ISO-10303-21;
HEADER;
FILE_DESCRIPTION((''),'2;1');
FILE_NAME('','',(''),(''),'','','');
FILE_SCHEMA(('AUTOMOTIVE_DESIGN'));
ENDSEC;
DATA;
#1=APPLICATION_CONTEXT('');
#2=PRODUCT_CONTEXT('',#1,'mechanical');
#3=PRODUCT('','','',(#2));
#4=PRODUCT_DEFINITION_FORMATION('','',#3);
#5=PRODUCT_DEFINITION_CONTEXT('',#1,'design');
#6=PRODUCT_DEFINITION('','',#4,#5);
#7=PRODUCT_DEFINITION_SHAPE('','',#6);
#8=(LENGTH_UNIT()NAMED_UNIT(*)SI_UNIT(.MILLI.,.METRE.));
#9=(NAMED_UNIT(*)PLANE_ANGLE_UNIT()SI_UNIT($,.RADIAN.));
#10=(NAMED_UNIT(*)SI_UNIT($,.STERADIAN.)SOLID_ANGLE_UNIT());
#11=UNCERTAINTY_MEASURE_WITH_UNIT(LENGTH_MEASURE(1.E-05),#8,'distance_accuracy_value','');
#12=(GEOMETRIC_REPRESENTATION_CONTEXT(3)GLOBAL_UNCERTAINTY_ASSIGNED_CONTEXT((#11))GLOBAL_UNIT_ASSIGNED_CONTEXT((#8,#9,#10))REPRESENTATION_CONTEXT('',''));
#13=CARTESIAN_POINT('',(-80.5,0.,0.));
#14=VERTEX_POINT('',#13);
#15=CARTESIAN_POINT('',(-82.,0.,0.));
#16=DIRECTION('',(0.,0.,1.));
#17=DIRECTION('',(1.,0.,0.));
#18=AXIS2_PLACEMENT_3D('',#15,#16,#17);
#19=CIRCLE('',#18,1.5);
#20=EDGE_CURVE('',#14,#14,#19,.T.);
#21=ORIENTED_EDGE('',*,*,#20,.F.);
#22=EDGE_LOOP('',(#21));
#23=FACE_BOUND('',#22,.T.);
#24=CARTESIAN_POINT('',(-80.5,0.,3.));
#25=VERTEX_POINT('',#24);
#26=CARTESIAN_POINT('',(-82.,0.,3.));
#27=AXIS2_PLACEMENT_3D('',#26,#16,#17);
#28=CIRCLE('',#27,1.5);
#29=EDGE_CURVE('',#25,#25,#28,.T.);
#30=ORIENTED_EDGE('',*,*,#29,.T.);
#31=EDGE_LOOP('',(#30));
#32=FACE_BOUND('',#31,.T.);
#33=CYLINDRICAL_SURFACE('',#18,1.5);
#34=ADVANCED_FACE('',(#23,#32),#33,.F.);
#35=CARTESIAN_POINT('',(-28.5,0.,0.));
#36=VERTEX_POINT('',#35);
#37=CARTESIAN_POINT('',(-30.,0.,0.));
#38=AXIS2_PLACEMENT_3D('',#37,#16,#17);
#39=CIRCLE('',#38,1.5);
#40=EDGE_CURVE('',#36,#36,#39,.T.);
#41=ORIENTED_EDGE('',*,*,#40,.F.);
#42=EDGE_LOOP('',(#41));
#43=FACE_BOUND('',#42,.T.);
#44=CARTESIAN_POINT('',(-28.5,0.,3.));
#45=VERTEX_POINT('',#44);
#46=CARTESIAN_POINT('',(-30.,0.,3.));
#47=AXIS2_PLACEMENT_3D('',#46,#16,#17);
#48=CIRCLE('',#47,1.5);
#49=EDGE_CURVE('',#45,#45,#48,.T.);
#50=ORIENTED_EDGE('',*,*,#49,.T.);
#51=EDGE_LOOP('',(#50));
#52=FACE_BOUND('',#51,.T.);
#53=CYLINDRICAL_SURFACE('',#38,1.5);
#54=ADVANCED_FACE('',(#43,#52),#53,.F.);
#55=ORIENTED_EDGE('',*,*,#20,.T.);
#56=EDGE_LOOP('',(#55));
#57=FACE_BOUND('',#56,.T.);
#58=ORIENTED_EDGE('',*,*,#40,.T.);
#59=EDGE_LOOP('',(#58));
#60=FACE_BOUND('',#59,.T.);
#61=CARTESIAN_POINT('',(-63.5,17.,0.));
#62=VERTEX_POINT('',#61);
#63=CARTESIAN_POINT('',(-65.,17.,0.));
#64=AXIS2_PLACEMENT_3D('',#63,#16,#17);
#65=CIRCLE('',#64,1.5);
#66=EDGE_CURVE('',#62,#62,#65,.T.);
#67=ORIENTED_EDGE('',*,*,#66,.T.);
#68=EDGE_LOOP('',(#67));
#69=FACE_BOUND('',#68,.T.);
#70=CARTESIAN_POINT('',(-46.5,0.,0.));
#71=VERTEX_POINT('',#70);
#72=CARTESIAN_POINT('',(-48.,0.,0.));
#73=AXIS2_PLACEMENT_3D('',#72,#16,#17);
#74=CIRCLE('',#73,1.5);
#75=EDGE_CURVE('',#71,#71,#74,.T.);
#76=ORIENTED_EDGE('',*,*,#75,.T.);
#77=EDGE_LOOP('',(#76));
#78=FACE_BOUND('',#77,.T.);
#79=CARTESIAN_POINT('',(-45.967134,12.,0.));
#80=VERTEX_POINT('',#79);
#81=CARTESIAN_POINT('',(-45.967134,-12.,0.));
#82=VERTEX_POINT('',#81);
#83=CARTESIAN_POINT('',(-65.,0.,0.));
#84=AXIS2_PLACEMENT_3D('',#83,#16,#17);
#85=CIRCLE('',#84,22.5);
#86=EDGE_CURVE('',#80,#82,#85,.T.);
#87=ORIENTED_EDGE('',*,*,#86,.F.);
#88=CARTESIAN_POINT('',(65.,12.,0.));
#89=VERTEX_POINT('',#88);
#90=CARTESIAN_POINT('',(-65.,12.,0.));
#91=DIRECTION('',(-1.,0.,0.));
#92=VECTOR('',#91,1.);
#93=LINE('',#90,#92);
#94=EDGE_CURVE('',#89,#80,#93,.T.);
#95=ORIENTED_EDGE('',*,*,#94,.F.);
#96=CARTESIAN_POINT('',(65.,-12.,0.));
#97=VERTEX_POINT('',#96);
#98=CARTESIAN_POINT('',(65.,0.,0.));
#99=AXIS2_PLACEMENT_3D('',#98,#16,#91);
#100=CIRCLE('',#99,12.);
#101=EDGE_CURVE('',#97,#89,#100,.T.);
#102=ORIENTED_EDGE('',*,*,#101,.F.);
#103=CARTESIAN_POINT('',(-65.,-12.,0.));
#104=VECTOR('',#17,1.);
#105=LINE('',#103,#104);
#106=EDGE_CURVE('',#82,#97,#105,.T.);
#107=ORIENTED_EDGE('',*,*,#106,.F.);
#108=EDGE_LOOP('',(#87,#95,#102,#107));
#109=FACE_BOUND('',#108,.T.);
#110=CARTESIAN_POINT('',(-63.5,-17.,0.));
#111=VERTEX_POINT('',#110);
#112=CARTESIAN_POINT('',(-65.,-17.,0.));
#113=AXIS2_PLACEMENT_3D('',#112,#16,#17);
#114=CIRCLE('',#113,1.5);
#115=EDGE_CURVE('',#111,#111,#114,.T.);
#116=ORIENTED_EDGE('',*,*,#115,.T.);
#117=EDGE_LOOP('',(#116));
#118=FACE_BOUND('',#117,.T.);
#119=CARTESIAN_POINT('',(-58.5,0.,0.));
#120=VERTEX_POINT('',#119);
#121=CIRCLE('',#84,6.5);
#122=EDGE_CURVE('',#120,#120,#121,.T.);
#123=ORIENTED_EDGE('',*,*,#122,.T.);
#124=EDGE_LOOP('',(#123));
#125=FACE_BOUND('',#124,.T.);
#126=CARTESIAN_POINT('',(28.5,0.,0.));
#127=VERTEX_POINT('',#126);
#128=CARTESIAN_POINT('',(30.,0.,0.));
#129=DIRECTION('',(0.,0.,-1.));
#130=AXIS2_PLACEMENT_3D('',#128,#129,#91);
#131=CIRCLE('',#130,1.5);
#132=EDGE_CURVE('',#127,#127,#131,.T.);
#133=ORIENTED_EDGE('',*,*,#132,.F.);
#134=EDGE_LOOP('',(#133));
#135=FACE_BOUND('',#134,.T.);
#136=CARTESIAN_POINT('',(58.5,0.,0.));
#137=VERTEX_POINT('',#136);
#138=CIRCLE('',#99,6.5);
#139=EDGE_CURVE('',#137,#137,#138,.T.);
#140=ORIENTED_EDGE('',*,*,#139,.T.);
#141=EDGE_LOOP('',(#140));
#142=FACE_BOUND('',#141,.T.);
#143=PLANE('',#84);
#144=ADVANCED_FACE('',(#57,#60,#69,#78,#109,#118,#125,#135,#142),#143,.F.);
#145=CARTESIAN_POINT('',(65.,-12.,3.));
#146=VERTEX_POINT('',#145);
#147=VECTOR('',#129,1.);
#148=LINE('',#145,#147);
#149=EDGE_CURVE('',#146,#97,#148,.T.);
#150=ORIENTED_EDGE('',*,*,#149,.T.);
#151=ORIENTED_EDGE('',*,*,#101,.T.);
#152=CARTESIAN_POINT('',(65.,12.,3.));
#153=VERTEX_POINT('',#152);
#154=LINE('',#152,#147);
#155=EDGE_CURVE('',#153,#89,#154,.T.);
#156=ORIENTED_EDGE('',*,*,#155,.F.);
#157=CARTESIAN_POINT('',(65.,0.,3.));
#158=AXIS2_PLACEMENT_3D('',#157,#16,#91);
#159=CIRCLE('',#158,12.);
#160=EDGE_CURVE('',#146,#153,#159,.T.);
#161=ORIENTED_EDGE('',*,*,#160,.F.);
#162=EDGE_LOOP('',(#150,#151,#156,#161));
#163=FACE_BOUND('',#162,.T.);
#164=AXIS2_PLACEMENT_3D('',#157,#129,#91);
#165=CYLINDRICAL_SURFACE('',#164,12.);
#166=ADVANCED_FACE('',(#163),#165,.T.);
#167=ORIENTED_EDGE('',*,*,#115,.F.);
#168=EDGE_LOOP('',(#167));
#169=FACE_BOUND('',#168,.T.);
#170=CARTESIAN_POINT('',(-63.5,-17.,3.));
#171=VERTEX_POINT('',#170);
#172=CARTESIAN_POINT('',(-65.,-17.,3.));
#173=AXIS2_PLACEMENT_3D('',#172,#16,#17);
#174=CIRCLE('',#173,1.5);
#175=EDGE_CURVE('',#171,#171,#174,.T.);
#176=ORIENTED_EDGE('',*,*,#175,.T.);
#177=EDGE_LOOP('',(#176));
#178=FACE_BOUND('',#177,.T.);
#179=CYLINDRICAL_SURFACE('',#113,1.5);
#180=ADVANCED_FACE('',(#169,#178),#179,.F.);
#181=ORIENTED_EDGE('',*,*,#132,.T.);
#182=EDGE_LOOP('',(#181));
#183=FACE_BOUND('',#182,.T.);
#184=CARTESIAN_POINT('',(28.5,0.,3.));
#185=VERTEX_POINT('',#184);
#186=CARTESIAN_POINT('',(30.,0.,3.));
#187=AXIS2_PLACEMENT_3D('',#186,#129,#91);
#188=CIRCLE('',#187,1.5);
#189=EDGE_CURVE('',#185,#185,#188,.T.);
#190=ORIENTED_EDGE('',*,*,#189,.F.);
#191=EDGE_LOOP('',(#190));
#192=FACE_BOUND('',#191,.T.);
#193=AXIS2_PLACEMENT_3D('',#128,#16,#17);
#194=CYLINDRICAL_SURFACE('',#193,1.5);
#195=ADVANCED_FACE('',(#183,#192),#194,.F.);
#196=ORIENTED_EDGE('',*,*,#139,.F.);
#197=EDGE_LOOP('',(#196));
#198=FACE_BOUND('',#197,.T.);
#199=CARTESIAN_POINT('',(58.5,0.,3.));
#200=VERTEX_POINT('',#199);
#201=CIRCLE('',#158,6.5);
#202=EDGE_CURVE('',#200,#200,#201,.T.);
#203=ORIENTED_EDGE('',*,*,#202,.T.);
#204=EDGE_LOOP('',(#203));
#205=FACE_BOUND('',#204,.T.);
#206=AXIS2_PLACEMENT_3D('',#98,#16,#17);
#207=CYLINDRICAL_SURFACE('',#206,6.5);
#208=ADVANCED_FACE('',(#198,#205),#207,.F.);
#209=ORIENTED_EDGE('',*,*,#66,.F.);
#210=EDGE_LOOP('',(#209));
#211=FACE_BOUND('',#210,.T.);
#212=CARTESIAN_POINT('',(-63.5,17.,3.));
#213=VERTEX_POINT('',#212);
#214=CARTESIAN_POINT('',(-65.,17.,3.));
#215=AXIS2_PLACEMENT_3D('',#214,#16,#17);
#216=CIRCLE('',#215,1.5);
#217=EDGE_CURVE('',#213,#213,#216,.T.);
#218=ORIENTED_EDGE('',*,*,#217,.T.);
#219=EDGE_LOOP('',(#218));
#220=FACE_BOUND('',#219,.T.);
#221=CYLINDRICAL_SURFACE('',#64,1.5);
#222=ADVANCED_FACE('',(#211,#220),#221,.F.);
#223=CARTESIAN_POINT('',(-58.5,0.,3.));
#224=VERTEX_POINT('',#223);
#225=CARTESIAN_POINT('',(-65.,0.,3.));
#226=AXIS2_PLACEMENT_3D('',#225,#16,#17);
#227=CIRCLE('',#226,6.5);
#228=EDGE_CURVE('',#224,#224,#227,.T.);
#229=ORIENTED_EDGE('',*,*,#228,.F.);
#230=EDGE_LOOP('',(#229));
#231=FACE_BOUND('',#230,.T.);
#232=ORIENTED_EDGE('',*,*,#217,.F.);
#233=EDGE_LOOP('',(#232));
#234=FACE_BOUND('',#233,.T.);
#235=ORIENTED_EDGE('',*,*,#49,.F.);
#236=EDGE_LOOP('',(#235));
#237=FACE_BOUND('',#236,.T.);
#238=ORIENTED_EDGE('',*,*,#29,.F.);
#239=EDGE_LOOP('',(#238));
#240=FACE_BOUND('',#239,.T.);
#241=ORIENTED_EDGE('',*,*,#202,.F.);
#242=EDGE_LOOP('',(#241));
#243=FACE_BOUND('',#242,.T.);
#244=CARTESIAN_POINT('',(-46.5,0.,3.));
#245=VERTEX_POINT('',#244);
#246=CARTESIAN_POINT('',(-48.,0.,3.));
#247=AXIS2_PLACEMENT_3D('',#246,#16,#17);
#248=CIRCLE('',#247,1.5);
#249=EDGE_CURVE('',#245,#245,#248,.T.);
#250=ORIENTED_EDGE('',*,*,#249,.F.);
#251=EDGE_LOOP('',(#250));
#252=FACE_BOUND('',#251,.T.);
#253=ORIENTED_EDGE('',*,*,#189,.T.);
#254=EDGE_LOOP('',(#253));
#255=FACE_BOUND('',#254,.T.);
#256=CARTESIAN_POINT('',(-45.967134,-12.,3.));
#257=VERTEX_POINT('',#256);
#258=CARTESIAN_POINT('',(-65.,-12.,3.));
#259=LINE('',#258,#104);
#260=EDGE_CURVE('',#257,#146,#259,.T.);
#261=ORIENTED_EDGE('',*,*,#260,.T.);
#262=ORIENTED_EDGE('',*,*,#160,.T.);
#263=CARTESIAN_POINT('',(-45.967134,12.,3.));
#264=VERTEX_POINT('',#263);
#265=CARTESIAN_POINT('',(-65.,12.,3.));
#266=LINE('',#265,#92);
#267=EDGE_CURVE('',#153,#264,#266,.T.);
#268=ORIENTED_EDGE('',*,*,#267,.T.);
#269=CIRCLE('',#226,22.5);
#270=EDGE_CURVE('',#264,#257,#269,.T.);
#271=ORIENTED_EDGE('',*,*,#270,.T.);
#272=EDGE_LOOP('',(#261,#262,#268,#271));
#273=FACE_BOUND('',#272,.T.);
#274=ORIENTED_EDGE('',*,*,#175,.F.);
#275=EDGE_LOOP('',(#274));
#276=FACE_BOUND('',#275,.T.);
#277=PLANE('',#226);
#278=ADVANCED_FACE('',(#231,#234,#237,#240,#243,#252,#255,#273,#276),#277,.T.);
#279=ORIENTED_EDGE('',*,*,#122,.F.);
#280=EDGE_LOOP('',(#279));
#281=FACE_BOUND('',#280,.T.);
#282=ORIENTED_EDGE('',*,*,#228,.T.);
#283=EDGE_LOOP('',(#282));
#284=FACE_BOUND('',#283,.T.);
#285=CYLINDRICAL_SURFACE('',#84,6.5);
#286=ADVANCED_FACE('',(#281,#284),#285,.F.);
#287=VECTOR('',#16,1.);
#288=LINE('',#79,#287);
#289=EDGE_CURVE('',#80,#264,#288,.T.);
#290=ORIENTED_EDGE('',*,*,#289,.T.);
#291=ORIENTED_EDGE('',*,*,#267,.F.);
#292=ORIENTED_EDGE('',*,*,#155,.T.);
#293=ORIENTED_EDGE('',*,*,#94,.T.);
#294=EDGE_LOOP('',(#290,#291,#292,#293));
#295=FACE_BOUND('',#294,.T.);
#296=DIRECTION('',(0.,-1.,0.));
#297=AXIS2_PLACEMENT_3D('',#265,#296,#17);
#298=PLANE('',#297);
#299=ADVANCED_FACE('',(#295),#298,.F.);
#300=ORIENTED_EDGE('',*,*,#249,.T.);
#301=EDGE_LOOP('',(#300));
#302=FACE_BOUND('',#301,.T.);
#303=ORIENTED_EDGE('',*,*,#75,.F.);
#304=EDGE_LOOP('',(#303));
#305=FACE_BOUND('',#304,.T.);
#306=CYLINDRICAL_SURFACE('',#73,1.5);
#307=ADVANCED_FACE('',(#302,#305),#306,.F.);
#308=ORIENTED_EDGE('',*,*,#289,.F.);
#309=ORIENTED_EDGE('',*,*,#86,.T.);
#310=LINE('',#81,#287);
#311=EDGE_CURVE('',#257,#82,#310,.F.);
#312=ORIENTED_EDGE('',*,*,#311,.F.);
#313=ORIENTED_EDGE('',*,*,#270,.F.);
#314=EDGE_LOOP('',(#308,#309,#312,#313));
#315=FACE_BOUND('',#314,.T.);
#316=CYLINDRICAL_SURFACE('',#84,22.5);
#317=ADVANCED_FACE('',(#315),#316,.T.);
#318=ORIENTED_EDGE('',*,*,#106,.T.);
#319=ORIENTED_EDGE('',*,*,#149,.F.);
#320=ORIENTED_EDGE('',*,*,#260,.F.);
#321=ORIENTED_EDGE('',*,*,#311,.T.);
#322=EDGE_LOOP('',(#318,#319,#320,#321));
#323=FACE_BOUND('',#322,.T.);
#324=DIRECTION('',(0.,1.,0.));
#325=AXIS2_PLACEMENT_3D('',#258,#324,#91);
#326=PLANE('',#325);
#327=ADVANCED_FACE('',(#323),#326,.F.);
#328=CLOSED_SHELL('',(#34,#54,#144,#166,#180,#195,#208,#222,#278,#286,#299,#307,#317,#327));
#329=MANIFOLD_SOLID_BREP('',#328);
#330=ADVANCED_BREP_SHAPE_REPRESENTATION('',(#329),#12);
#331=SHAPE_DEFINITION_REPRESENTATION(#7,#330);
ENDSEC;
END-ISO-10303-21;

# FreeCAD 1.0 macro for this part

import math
import FreeCAD as App
import Part
import Sketcher
from FreeCAD import Vector
Q = App.Units.Quantity

doc = App.newDocument("Part")
body = doc.addObject("PartDesign::Body", "Body")

# Sketch on XY plane
sketch1 = body.newObject("Sketcher::SketchObject", "Sketch")
sketch1.AttachmentSupport = (doc.getObject("XY_Plane"), [""])
sketch1.MapMode = "FlatFace"
sketch1.addGeometry(Part.LineSegment(Vector(65, 12, 0), Vector(-65, 12, 0)), False)
sketch1.addGeometry(Part.ArcOfCircle(Part.Circle(Vector(-65, 0, 0), Vector(0, 0, 1), 12), math.radians(90), math.radians(270)), False)
sketch1.addGeometry(Part.LineSegment(Vector(-65, -12, 0), Vector(65, -12, 0)), False)
sketch1.addGeometry(Part.ArcOfCircle(Part.Circle(Vector(65, 0, 0), Vector(0, 0, 1), 12), math.radians(-90), math.radians(90)), False)
sketch1.addConstraint(Sketcher.Constraint("Tangent", 0, 2, 1, 1))
sketch1.addConstraint(Sketcher.Constraint("Tangent", 1, 2, 2, 1))
sketch1.addConstraint(Sketcher.Constraint("Tangent", 2, 2, 3, 1))
sketch1.addConstraint(Sketcher.Constraint("Tangent", 3, 2, 0, 1))
sketch1.addConstraint(Sketcher.Constraint("Horizontal", 0))
sketch1.addConstraint(Sketcher.Constraint("Horizontal", 2))
sketch1.addConstraint(Sketcher.Constraint("Symmetric", 1, 3, 3, 3, -1, 1))
sketch1.addConstraint(Sketcher.Constraint("Radius", 1, Q("12 mm")))
sketch1.addConstraint(Sketcher.Constraint("DistanceX", 0, 2, 0, 1, Q("130 mm")))
pad1 = body.newObject("PartDesign::Pad", "Pad")
pad1.Profile = sketch1
pad1.Length = 3

# Sketch on XY plane
sketch2 = body.newObject("Sketcher::SketchObject", "Sketch001")
sketch2.AttachmentSupport = (doc.getObject("XY_Plane"), [""])
sketch2.MapMode = "FlatFace"
sketch2.AttachmentOffset = App.Placement(Vector(0, 0, 3), App.Rotation())
sketch2.addGeometry(Part.Circle(Vector(-65, 0, 0), Vector(0, 0, 1), 6), False)
sketch2.addGeometry(Part.Circle(Vector(65, 0, 0), Vector(0, 0, 1), 6), False)
sketch2.addConstraint(Sketcher.Constraint("Equal", 0, 1))
sketch2.addConstraint(Sketcher.Constraint("Symmetric", 0, 3, 1, 3, -1, 1))
sketch2.addConstraint(Sketcher.Constraint("PointOnObject", 0, 3, -1))
sketch2.addConstraint(Sketcher.Constraint("Diameter", 0, Q("13 mm")))
sketch2.addConstraint(Sketcher.Constraint("DistanceX", 0, 3, -1, 1, Q("65 mm")))
pocket1 = body.newObject("PartDesign::Pocket", "Pocket")
pocket1.Profile = sketch2
pocket1.Type = "ThroughAll"

# Sketch on XY plane
sketch3 = body.newObject("Sketcher::SketchObject", "Sketch002")
sketch3.AttachmentSupport = (doc.getObject("XY_Plane"), [""])
sketch3.MapMode = "FlatFace"
sketch3.AttachmentOffset = App.Placement(Vector(0, 0, 3), App.Rotation())
sketch3.addGeometry(Part.Circle(Vector(-30, 0, 0), Vector(0, 0, 1), 1.5), False)
sketch3.addGeometry(Part.Circle(Vector(30, 0, 0), Vector(0, 0, 1), 1.5), False)
sketch3.addConstraint(Sketcher.Constraint("Equal", 0, 1))
sketch3.addConstraint(Sketcher.Constraint("Symmetric", 0, 3, 1, 3, -1, 1))
sketch3.addConstraint(Sketcher.Constraint("PointOnObject", 0, 3, -1))
sketch3.addConstraint(Sketcher.Constraint("Diameter", 0, Q("3 mm")))
sketch3.addConstraint(Sketcher.Constraint("DistanceX", 0, 3, -1, 1, Q("30 mm")))
pocket2 = body.newObject("PartDesign::Pocket", "Pocket001")
pocket2.Profile = sketch3
pocket2.Type = "ThroughAll"
pocket2.Midplane = True

# Sketch on XY plane
sketch4 = body.newObject("Sketcher::SketchObject", "Sketch003")
sketch4.AttachmentSupport = (doc.getObject("XY_Plane"), [""])
sketch4.MapMode = "FlatFace"
sketch4.AttachmentOffset = App.Placement(Vector(0, 0, 3), App.Rotation())
sketch4.addGeometry(Part.Circle(Vector(-65, 0, 0), Vector(0, 0, 1), 22), False)
sketch4.addGeometry(Part.Circle(Vector(-65, 0, 0), Vector(0, 0, 1), 6), False)
sketch4.addConstraint(Sketcher.Constraint("Coincident", 1, 3, 0, 3))
sketch4.addConstraint(Sketcher.Constraint("PointOnObject", 0, 3, -1))
sketch4.addConstraint(Sketcher.Constraint("Diameter", 0, Q("45 mm")))
sketch4.addConstraint(Sketcher.Constraint("Diameter", 1, Q("13 mm")))
sketch4.addConstraint(Sketcher.Constraint("DistanceX", 0, 3, -1, 1, Q("65 mm")))
pad2 = body.newObject("PartDesign::Pad", "Pad001")
pad2.Profile = sketch4
pad2.Length = 3
pad2.Reversed = True

# Sketch on XY plane
sketch5 = body.newObject("Sketcher::SketchObject", "Sketch004")
sketch5.AttachmentSupport = (doc.getObject("XY_Plane"), [""])
sketch5.MapMode = "FlatFace"
sketch5.AttachmentOffset = App.Placement(Vector(0, 0, 3), App.Rotation())
sketch5.addGeometry(Part.Circle(Vector(-65, 17, 0), Vector(0, 0, 1), 1.5), False)
sketch5.addGeometry(Part.Circle(Vector(-48, 0, 0), Vector(0, 0, 1), 1.5), False)
sketch5.addGeometry(Part.Circle(Vector(-65, -17, 0), Vector(0, 0, 1), 1.5), False)
sketch5.addGeometry(Part.Circle(Vector(-82, 0, 0), Vector(0, 0, 1), 1.5), False)
sketch5.addConstraint(Sketcher.Constraint("Equal", 0, 1))
sketch5.addConstraint(Sketcher.Constraint("Equal", 1, 2))
sketch5.addConstraint(Sketcher.Constraint("Equal", 2, 3))
sketch5.addConstraint(Sketcher.Constraint("Symmetric", 0, 3, 2, 3, -1))
sketch5.addConstraint(Sketcher.Constraint("PointOnObject", 1, 3, -1))
sketch5.addConstraint(Sketcher.Constraint("PointOnObject", 3, 3, -1))
sketch5.addConstraint(Sketcher.Constraint("Diameter", 0, Q("3 mm")))
sketch5.addConstraint(Sketcher.Constraint("DistanceX", 0, 3, -1, 1, Q("65 mm")))
sketch5.addConstraint(Sketcher.Constraint("DistanceY", -1, 1, 0, 3, Q("17 mm")))
sketch5.addConstraint(Sketcher.Constraint("DistanceX", 1, 3, -1, 1, Q("48 mm")))
sketch5.addConstraint(Sketcher.Constraint("DistanceX", 3, 3, -1, 1, Q("82 mm")))
pocket3 = body.newObject("PartDesign::Pocket", "Pocket002")
pocket3.Profile = sketch5
pocket3.Type = "ThroughAll"

doc.recompute()
